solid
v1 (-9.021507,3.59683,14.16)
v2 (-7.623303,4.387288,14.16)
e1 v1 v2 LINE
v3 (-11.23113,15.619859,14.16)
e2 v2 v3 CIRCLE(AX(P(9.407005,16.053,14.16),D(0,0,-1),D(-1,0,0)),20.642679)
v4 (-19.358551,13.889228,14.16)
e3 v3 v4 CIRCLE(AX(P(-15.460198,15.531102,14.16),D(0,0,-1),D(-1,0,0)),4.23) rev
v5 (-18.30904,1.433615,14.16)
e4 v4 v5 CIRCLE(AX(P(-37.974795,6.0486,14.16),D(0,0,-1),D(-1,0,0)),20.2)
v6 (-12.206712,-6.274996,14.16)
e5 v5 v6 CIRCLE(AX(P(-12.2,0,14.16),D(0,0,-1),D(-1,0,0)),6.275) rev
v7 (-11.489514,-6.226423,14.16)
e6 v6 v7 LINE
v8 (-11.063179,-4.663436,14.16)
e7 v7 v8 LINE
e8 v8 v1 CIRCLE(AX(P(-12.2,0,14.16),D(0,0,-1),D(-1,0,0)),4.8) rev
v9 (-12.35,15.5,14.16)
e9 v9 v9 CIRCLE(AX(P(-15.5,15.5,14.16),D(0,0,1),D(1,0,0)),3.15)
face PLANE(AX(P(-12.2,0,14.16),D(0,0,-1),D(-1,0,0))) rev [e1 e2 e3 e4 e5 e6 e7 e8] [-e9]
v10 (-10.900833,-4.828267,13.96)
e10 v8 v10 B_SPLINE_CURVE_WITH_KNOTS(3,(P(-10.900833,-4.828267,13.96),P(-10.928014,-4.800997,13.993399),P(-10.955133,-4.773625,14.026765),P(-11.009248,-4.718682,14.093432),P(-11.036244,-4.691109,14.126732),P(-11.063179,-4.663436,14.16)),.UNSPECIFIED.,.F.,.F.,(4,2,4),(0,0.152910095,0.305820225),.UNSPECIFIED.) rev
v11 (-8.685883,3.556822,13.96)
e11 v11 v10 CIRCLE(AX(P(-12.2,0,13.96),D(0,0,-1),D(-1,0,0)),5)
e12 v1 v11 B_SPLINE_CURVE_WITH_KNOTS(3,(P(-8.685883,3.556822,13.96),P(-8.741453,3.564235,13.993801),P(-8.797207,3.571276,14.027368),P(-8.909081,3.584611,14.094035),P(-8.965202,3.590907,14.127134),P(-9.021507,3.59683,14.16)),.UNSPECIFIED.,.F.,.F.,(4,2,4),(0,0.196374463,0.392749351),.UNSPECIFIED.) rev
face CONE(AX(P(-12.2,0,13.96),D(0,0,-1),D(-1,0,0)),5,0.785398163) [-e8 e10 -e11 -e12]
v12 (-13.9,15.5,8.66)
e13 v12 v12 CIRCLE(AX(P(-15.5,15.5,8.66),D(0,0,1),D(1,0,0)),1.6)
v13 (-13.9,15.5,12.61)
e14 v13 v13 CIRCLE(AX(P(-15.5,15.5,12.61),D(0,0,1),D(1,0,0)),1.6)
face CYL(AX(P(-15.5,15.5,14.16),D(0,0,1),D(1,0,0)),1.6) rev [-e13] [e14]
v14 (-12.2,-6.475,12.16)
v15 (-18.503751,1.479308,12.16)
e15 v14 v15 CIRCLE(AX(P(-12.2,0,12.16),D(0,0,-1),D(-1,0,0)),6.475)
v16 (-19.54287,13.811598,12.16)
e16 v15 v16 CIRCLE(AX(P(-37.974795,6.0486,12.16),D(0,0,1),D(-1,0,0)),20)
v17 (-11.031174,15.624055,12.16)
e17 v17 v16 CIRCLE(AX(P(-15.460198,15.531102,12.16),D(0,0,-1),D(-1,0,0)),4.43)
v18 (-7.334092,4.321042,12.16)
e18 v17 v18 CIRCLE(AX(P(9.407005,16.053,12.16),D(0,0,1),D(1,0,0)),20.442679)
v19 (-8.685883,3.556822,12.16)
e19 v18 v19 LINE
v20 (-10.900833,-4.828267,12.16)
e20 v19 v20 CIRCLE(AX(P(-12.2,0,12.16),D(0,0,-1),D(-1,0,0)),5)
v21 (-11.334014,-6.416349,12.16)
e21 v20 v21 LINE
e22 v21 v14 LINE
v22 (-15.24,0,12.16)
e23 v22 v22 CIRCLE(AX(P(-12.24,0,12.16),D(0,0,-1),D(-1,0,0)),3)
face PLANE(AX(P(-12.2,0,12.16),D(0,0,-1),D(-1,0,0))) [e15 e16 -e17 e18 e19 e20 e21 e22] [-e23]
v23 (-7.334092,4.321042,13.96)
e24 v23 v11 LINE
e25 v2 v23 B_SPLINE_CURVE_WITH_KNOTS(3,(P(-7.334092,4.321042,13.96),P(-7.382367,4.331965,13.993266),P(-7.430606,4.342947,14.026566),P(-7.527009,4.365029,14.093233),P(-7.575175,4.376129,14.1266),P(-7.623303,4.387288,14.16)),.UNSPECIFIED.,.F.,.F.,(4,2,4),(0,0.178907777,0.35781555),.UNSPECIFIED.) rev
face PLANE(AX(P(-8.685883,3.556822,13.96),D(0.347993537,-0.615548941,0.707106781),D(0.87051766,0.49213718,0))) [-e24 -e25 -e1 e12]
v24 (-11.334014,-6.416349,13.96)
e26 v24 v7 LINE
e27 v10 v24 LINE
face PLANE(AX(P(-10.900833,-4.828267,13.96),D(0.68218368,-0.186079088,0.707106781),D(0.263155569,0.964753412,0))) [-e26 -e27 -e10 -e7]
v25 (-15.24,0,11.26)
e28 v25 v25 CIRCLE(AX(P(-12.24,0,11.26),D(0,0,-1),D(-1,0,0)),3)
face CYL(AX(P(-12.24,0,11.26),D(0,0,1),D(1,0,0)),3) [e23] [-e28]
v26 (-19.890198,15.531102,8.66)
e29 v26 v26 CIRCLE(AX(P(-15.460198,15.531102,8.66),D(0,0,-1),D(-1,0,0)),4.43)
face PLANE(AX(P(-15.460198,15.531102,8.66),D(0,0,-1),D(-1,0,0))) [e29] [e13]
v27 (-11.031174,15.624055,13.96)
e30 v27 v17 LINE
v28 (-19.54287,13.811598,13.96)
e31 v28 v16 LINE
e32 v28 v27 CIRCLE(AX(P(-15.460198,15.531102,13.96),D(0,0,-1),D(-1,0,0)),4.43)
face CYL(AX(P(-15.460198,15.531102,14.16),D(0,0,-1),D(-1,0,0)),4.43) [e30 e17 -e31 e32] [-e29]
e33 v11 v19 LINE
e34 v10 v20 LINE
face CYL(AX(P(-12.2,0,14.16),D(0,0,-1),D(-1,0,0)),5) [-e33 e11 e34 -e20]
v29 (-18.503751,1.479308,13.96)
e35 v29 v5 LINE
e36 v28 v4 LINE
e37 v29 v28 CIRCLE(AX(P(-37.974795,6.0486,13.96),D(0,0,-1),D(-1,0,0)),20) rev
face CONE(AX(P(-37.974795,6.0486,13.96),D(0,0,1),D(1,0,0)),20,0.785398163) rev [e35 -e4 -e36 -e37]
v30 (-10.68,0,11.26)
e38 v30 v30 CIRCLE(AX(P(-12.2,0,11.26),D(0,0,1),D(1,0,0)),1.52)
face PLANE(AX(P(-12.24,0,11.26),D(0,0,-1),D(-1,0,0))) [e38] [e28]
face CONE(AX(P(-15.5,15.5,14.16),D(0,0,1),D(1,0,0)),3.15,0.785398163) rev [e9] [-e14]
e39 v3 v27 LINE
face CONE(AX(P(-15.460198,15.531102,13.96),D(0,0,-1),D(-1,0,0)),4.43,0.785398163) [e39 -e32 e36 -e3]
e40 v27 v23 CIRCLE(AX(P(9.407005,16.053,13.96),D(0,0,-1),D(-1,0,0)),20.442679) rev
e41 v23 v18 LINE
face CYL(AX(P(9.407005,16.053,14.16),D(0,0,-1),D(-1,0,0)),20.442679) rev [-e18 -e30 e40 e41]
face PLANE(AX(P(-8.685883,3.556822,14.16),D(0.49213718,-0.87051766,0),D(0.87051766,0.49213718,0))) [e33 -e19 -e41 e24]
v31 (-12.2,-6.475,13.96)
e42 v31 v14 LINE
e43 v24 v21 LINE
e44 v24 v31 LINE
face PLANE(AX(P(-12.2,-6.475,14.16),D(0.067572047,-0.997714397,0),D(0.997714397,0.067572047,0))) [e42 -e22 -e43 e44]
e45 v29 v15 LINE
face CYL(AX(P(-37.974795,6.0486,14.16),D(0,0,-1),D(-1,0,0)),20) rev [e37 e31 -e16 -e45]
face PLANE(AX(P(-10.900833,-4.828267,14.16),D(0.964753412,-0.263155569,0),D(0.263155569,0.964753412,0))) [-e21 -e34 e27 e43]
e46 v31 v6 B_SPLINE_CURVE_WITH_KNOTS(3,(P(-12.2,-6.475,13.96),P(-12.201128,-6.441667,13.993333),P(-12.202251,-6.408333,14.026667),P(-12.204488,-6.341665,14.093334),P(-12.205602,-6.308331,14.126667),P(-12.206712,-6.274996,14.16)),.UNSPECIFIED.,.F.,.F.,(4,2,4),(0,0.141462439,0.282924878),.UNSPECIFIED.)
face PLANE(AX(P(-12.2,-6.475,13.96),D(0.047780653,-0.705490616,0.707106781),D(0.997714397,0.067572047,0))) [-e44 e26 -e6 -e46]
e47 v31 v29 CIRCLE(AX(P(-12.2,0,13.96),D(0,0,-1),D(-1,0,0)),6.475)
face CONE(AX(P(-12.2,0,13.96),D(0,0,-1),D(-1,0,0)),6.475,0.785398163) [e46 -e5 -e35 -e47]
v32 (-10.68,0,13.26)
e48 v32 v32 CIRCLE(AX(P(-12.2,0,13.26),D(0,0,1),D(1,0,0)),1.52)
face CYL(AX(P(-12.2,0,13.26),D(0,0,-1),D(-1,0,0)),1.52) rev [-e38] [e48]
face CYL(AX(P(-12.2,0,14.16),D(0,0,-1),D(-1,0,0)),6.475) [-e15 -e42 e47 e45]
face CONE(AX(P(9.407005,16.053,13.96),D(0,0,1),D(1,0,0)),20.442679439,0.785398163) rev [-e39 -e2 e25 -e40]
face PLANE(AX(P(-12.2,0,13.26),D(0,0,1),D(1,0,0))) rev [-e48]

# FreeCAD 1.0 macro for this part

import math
import FreeCAD as App
import Part
import Sketcher

V = App.Vector


def edges_at(feature, points):
    """Names of the edges that pass closest to the given points."""
    edges = feature.Shape.Edges
    near = lambda p: min(range(len(edges)), key=lambda i: edges[i].distToShape(Part.Vertex(*p))[0])
    return sorted({f"Edge{near(p) + 1}" for p in points})

doc = App.newDocument("Part")
body = doc.addObject("PartDesign::Body", "Body")

# Sketch on XY plane
sketch1 = doc.addObject("Sketcher::SketchObject", "Sketch")
body.addObject(sketch1)
sketch1.AttachmentSupport = (doc.XY_Plane, [""])
sketch1.MapMode = "FlatFace"
sketch1.AttachmentOffset = App.Placement(V(0, 0, 12.16), App.Rotation())
sketch1.addGeometry([
    Part.LineSegment(V(-10.900833, -4.828267, 0), V(-11.334014, -6.416349, 0)),  # 0
    Part.LineSegment(V(-11.334014, -6.416349, 0), V(-12.2, -6.475, 0)),  # 1
    Part.ArcOfCircle(Part.Circle(V(-12.2, 0, 0), V(0, 0, 1), 6.475), math.radians(166.793307), math.radians(270)),  # 2
    Part.ArcOfCircle(Part.Circle(V(-37.974795, 6.0486, 0), V(0, 0, 1), 20), math.radians(-13.206693), math.radians(22.839429)),  # 3
    Part.ArcOfCircle(Part.Circle(V(-15.460198, 15.531102, 0), V(0, 0, 1), 4.43), math.radians(1.202313), math.radians(202.839429)),  # 4
    Part.ArcOfCircle(Part.Circle(V(9.407005, 16.053, 0), V(0, 0, 1), 20.442679), math.radians(-178.797687), math.radians(-144.977694)),  # 5
    Part.LineSegment(V(-7.334092, 4.321042, 0), V(-8.685883, 3.556822, 0)),  # 6
    Part.ArcOfCircle(Part.Circle(V(-12.2, 0, 0), V(0, 0, 1), 5), math.radians(-74.939824), math.radians(45.34604)),  # 7
], False)
sketch1.addConstraint([
    Sketcher.Constraint("Coincident", 0, 2, 1, 1),
    Sketcher.Constraint("Coincident", 1, 2, 2, 2),
    Sketcher.Constraint("Tangent", 2, 1, 3, 1),
    Sketcher.Constraint("Tangent", 3, 2, 4, 2),
    Sketcher.Constraint("Tangent", 4, 1, 5, 1),
    Sketcher.Constraint("Coincident", 5, 2, 6, 1),
    Sketcher.Constraint("Coincident", 6, 2, 7, 2),
    Sketcher.Constraint("Coincident", 7, 1, 0, 1),
    Sketcher.Constraint("Coincident", 7, 3, 2, 3),
    Sketcher.Constraint("PointOnObject", 2, 3, -1),
    Sketcher.Constraint("Vertical", 7, 3, 1, 2),
    Sketcher.Constraint("Radius", 3, 20.0),
    Sketcher.Constraint("Radius", 7, 5.0),
    Sketcher.Constraint("Radius", 4, 4.43),
    Sketcher.Constraint("Radius", 2, 6.475),
    Sketcher.Constraint("DistanceX", 2, 3, -1, 1, 12.2),
    Sketcher.Constraint("Radius", 5, 20.442679),
    Sketcher.Constraint("DistanceY", -1, 1, 5, 3, 16.053),
    Sketcher.Constraint("Distance", 0, 1.646102),
    Sketcher.Constraint("DistanceY", -1, 1, 3, 3, 6.0486),
    Sketcher.Constraint("DistanceX", 4, 3, -1, 1, 15.460198),
    Sketcher.Constraint("Distance", 1, 0.86797),
    Sketcher.Constraint("Distance", 6, 1.55286),
    Sketcher.Constraint("DistanceY", 0, 2, -1, 1, 6.416349),
    Sketcher.Constraint("DistanceX", 5, 2, -1, 1, 7.334092),
])
pad1 = doc.addObject("PartDesign::Pad", "Pad")
body.addObject(pad1)
pad1.Profile = sketch1
pad1.Length = 2

# Sketch on XY plane
sketch2 = doc.addObject("Sketcher::SketchObject", "Sketch001")
body.addObject(sketch2)
sketch2.AttachmentSupport = (doc.XY_Plane, [""])
sketch2.MapMode = "FlatFace"
sketch2.AttachmentOffset = App.Placement(V(0, 0, 12.16), App.Rotation())
sketch2.addGeometry(Part.Circle(V(-15.460198, 15.531102, 0), V(0, 0, 1), 4.43), False)
sketch2.addConstraint([
    Sketcher.Constraint("Diameter", 0, 8.86),
    Sketcher.Constraint("DistanceX", 0, 3, -1, 1, 15.460198),
    Sketcher.Constraint("DistanceY", -1, 1, 0, 3, 15.531102),
])
pad2 = doc.addObject("PartDesign::Pad", "Pad001")
body.addObject(pad2)
pad2.Profile = sketch2
pad2.Length = 3.5
pad2.Reversed = True

# Sketch on XY plane
sketch3 = doc.addObject("Sketcher::SketchObject", "Sketch002")
body.addObject(sketch3)
sketch3.AttachmentSupport = (doc.XY_Plane, [""])
sketch3.MapMode = "FlatFace"
sketch3.AttachmentOffset = App.Placement(V(0, 0, 14.16), App.Rotation())
sketch3.addGeometry(Part.Circle(V(-15.5, 15.5, 0), V(0, 0, 1), 1.6), False)
sketch3.addConstraint([
    Sketcher.Constraint("Diameter", 0, 3.2),
    Sketcher.Constraint("DistanceX", 0, 3, -1, 1, 15.5),
    Sketcher.Constraint("DistanceY", -1, 1, 0, 3, 15.5),
])
doc.recompute()
hole = doc.addObject("PartDesign::Hole", "Hole")
body.addObject(hole)
hole.Profile = sketch3
hole.ThreadType = "None"
hole.Diameter = 3.2
hole.DepthType = "ThroughAll"
hole.HoleCutType = "Countersink"
hole.HoleCutDiameter = 6.3
hole.HoleCutCountersinkAngle = 90

# Sketch on XY plane
sketch4 = doc.addObject("Sketcher::SketchObject", "Sketch003")
body.addObject(sketch4)
sketch4.AttachmentSupport = (doc.XY_Plane, [""])
sketch4.MapMode = "FlatFace"
sketch4.AttachmentOffset = App.Placement(V(0, 0, 12.16), App.Rotation())
sketch4.addGeometry(Part.Circle(V(-12.24, 0, 0), V(0, 0, 1), 3), False)
sketch4.addConstraint([
    Sketcher.Constraint("PointOnObject", 0, 3, -1),
    Sketcher.Constraint("Diameter", 0, 6.0),
    Sketcher.Constraint("DistanceX", 0, 3, -1, 1, 12.24),
])
pad3 = doc.addObject("PartDesign::Pad", "Pad002")
body.addObject(pad3)
pad3.Profile = sketch4
pad3.Length = 0.9
pad3.Reversed = True

# Sketch on XY plane
sketch5 = doc.addObject("Sketcher::SketchObject", "Sketch004")
body.addObject(sketch5)
sketch5.AttachmentSupport = (doc.XY_Plane, [""])
sketch5.MapMode = "FlatFace"
sketch5.AttachmentOffset = App.Placement(V(0, 0, 11.26), App.Rotation())
sketch5.addGeometry(Part.Circle(V(-12.2, 0, 0), V(0, 0, 1), 1.52), False)
sketch5.addConstraint([
    Sketcher.Constraint("PointOnObject", 0, 3, -1),
    Sketcher.Constraint("Diameter", 0, 3.04),
    Sketcher.Constraint("DistanceX", 0, 3, -1, 1, 12.2),
])
pocket1 = doc.addObject("PartDesign::Pocket", "Pocket")
body.addObject(pocket1)
pocket1.Profile = sketch5
pocket1.Length = 2
pocket1.Reversed = True
doc.recompute()

chamfer = doc.addObject("PartDesign::Chamfer", "Chamfer")
body.addObject(chamfer)
chamfer.Base = (pocket1, edges_at(pocket1, [
    (-16.383, 19.864, 14.16),
    (-10.023, 9.698, 14.16),
    (-8.01, 3.939, 14.16),
    (-7.366, -1.277, 14.16),
    (-11.117, -5.622, 14.16),
    (-11.767, -6.446, 14.16),
    (-17.275, -4.022, 14.16),
    (-18.045, 7.728, 14.16),
]))
chamfer.Size = 0.2

doc.recompute()
